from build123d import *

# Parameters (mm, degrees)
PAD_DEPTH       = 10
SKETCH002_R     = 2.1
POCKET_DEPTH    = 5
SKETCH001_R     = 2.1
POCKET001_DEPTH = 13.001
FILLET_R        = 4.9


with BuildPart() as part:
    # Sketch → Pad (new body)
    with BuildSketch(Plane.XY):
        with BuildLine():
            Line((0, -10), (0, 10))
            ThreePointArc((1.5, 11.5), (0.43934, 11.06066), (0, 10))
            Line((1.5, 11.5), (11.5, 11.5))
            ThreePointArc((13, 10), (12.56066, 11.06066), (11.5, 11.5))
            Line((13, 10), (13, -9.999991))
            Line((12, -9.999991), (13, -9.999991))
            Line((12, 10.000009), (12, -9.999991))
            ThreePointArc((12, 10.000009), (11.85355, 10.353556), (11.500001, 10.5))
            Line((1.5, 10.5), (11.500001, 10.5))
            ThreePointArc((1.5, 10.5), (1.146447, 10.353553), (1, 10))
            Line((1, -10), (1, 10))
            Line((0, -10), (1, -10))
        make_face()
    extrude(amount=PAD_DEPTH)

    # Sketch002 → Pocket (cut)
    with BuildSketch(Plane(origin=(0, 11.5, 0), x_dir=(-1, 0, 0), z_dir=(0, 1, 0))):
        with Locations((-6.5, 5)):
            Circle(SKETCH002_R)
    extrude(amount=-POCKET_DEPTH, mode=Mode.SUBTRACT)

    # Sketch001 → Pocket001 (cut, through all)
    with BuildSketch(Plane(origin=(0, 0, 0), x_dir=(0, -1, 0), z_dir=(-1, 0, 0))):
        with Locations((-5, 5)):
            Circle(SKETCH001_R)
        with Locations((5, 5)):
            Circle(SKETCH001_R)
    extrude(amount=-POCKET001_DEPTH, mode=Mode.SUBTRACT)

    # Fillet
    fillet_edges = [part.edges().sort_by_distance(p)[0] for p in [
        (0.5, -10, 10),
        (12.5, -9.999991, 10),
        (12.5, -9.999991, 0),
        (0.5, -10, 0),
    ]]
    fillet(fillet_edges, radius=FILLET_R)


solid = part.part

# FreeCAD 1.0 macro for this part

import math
import FreeCAD as App
import Part
import Sketcher
from FreeCAD import Vector


def edges_at(feature, points):
    """Names of the edges that pass closest to the given points."""
    edges = feature.Shape.Edges
    near = lambda p: min(range(len(edges)), key=lambda i: edges[i].distToShape(Part.Vertex(*p))[0])
    return sorted({f"Edge{near(p) + 1}" for p in points})

doc = App.newDocument("Part")
body = doc.addObject("PartDesign::Body", "Body")

sketch1 = body.newObject("Sketcher::SketchObject", "Sketch")
sketch1.AttachmentSupport = (doc.getObject("XY_Plane"), [""])
sketch1.MapMode = "FlatFace"
sketch1.addGeometry([
    Part.LineSegment(Vector(0, 10, 0), Vector(0, -10, 0)),
    Part.LineSegment(Vector(0, -10, 0), Vector(1, -10, 0)),
    Part.LineSegment(Vector(1, -10, 0), Vector(1, 10, 0)),
    Part.ArcOfCircle(Part.Circle(Vector(1.5, 10, 0), Vector(0, 0, 1), 0.5), math.radians(90), math.radians(180)),
    Part.LineSegment(Vector(1.5, 10.5, 0), Vector(11.5, 10.5, 0)),
    Part.ArcOfCircle(Part.Circle(Vector(11.5, 10, 0), Vector(0, 0, 1), 0.5), math.radians(0), math.radians(90)),
    Part.LineSegment(Vector(12, 10, 0), Vector(12, -10, 0)),
    Part.LineSegment(Vector(12, -10, 0), Vector(13, -10, 0)),
    Part.LineSegment(Vector(13, -10, 0), Vector(13, 10, 0)),
    Part.ArcOfCircle(Part.Circle(Vector(11.5, 10, 0), Vector(0, 0, 1), 1.5), math.radians(0), math.radians(90)),
    Part.LineSegment(Vector(11.5, 11.5, 0), Vector(1.5, 11.5, 0)),
    Part.ArcOfCircle(Part.Circle(Vector(1.5, 10, 0), Vector(0, 0, 1), 1.5), math.radians(90), math.radians(180)),
], False)
sketch1.addConstraint([
    Sketcher.Constraint("Coincident", 0, 2, 1, 1),
    Sketcher.Constraint("Coincident", 1, 2, 2, 1),
    Sketcher.Constraint("Coincident", 2, 2, 3, 2),
    Sketcher.Constraint("Coincident", 3, 1, 4, 1),
    Sketcher.Constraint("Coincident", 4, 2, 5, 2),
    Sketcher.Constraint("Coincident", 5, 1, 6, 1),
    Sketcher.Constraint("Coincident", 6, 2, 7, 1),
    Sketcher.Constraint("Coincident", 7, 2, 8, 1),
    Sketcher.Constraint("Tangent", 8, 2, 9, 1),
    Sketcher.Constraint("Tangent", 9, 2, 10, 1),
    Sketcher.Constraint("Tangent", 10, 2, 11, 1),
    Sketcher.Constraint("Tangent", 11, 2, 0, 1),
    Sketcher.Constraint("Vertical", 0),
    Sketcher.Constraint("Horizontal", 1),
    Sketcher.Constraint("Vertical", 2),
    Sketcher.Constraint("Horizontal", 4),
    Sketcher.Constraint("Vertical", 6),
    Sketcher.Constraint("Horizontal", 7),
    Sketcher.Constraint("Vertical", 8),
    Sketcher.Constraint("Horizontal", 10),
    Sketcher.Constraint("Coincident", 9, 3, 5, 3),
    Sketcher.Constraint("Coincident", 11, 3, 3, 3),
    Sketcher.Constraint("Equal", 3, 5),
    Sketcher.Constraint("Symmetric", 0, 2, 11, 2, -1, 1),
    Sketcher.Constraint("Horizontal", 11, 3, 2, 2),
    Sketcher.Constraint("Vertical", 11, 3, 3, 1),
    Sketcher.Constraint("Vertical", 9, 3, 4, 2),
    Sketcher.Constraint("Equal", 2, 6),
    Sketcher.Constraint("Radius", 3, 0.500001),
    Sketcher.Constraint("Radius", 9, 1.500001),
    Sketcher.Constraint("DistanceX", 4, 1, 4, 2, 10.000001),
    Sketcher.Constraint("DistanceY", 0, 2, 0, 1, 20.0),
    Sketcher.Constraint("DistanceY", 8, 1, 8, 2, 19.999991),
])
pad1 = body.newObject("PartDesign::Pad", "Pad")
pad1.Profile = sketch1
pad1.Length = 10

sketch2 = body.newObject("Sketcher::SketchObject", "Sketch001")
sketch2.AttachmentSupport = (doc.getObject("XZ_Plane"), [""])
sketch2.MapMode = "FlatFace"
sketch2.AttachmentOffset = App.Placement(Vector(0, 0, -11.5), App.Rotation())
sketch2.addGeometry(Part.Circle(Vector(6.5, 5, 0), Vector(0, 0, 1), 2.1), False)
sketch2.addConstraint([
    Sketcher.Constraint("Diameter", 0, 4.2),
    Sketcher.Constraint("DistanceY", -1, 1, 0, 3, 5.0),
    Sketcher.Constraint("DistanceX", -1, 1, 0, 3, 6.5),
])
pocket1 = body.newObject("PartDesign::Pocket", "Pocket")
pocket1.Profile = sketch2
pocket1.Length = 5
pocket1.Reversed = True

sketch3 = body.newObject("Sketcher::SketchObject", "Sketch002")
sketch3.AttachmentSupport = (doc.getObject("YZ_Plane"), [""])
sketch3.MapMode = "FlatFace"
sketch3.addGeometry([
    Part.Circle(Vector(5, 5, 0), Vector(0, 0, 1), 2.1),
    Part.Circle(Vector(-5, 5, 0), Vector(0, 0, 1), 2.1),
], False)
sketch3.addConstraint([
    Sketcher.Constraint("Equal", 0, 1),
    Sketcher.Constraint("Symmetric", 0, 3, 1, 3, -2),
    Sketcher.Constraint("Diameter", 0, 4.2),
    Sketcher.Constraint("DistanceX", -1, 1, 0, 3, 5.0),
    Sketcher.Constraint("DistanceY", -1, 1, 0, 3, 5.0),
])
pocket2 = body.newObject("PartDesign::Pocket", "Pocket001")
pocket2.Profile = sketch3
pocket2.Type = "ThroughAll"
pocket2.Reversed = True
doc.recompute()

fillet = body.newObject("PartDesign::Fillet", "Fillet")
fillet.Base = (pocket2, edges_at(pocket2, [
    (0.5, -10, 10),
    (12.5, -10, 10),
    (12.5, -10, 0),
    (0.5, -10, 0),
]))
fillet.Radius = 4.9

doc.recompute()
